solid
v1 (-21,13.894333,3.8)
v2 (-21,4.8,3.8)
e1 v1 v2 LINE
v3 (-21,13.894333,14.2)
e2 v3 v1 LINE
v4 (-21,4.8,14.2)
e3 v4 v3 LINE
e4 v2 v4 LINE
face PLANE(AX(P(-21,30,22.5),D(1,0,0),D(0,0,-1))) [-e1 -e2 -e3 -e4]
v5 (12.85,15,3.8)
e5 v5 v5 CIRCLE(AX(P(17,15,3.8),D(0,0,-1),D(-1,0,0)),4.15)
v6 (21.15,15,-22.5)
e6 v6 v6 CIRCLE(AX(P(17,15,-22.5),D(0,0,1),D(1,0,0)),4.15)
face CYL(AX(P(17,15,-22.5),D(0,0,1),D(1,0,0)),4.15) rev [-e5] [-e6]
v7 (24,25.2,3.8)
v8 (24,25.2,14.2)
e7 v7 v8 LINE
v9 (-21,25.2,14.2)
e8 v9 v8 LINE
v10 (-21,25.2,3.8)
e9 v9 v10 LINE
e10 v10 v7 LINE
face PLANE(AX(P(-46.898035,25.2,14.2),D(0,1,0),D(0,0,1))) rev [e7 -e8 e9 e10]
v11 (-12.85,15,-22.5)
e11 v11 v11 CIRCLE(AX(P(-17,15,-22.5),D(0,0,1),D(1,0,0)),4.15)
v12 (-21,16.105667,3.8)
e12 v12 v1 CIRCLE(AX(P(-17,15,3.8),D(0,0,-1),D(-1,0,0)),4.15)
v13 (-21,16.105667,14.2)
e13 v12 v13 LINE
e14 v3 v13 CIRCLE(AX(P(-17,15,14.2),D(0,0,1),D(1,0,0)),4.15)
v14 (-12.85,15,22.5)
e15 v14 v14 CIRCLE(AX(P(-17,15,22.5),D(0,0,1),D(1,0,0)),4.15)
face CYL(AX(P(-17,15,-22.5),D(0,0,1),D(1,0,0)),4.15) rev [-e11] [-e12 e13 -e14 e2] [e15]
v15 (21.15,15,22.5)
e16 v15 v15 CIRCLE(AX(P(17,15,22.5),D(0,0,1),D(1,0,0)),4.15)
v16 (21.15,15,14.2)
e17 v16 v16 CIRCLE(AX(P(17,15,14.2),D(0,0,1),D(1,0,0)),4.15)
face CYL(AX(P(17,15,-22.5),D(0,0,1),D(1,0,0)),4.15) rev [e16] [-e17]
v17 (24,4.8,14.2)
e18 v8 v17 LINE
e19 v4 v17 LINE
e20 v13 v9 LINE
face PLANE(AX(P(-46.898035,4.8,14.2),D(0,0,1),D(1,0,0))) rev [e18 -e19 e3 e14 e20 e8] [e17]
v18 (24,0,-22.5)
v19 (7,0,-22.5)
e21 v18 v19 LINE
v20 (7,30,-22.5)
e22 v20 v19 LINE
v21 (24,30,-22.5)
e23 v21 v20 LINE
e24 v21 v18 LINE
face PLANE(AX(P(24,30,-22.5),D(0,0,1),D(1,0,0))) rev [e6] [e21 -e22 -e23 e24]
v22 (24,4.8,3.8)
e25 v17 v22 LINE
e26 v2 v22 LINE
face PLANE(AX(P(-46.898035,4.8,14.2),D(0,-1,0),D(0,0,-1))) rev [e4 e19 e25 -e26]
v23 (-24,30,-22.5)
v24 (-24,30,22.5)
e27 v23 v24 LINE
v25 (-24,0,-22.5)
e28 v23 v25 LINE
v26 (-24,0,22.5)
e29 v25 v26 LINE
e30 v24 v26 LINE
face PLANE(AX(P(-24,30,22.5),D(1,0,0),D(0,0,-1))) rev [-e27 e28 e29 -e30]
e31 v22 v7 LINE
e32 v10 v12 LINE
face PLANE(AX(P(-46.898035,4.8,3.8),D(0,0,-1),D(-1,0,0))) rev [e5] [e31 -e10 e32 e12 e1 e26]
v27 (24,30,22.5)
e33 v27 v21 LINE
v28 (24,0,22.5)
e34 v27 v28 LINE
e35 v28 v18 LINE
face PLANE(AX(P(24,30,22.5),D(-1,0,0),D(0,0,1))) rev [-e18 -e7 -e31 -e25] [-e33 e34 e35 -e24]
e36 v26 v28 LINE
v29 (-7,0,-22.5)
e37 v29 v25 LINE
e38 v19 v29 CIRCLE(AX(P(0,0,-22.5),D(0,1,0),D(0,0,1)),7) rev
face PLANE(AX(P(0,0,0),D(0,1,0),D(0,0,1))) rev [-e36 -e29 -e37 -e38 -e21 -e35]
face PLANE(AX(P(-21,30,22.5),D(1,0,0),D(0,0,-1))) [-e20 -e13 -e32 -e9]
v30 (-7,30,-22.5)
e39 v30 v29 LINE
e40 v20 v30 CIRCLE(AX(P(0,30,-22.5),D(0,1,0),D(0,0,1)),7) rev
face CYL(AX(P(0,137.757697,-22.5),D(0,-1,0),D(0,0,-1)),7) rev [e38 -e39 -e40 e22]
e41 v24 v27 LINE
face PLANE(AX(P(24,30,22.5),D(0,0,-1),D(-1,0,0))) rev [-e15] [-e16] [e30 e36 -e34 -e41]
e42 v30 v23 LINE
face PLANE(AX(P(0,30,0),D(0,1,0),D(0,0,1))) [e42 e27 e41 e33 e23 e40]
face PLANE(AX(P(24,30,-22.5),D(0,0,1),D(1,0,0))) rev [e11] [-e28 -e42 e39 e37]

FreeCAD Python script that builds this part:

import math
import FreeCAD as App
import Part
import Sketcher
from FreeCAD import Vector
Q = App.Units.Quantity


def add_polygon(sketch, points):
    """Adds a closed chain of lines whose ends are joined by coincident constraints."""
    first, n = sketch.GeometryCount, len(points)
    for a, b in zip(points, points[1:] + points[:1]):
        sketch.addGeometry(Part.LineSegment(App.Vector(*a, 0), App.Vector(*b, 0)), False)
    for i in range(n):
        sketch.addConstraint(Sketcher.Constraint("Coincident", first + i, 2, first + (i + 1) % n, 1))

doc = App.newDocument("Part")
params = doc.addObject("Spreadsheet::Sheet", "Params")
for row, (alias, value) in enumerate([
    ("sketch1_width", "48 mm"),
    ("sketch1_height", "45 mm"),
    ("pad1_length", "30 mm"),
    ("sketch2_width", "20.4 mm"),
    ("sketch2_height", "10.4 mm"),
    ("pocket1_length", "45 mm"),
    ("sketch3_diameter", "8.3 mm"),
    ("sketch4_radius", "7 mm"),
], start=1):
    params.set(f"A{row}", alias)
    params.set(f"B{row}", "=" + value)
    params.setAlias(f"B{row}", alias)

body = doc.addObject("PartDesign::Body", "Body")

sketch1 = doc.addObject("Sketcher::SketchObject", "Sketch")
body.addObject(sketch1)
sketch1.AttachmentSupport = (doc.XZ_Plane, [""])
sketch1.MapMode = "FlatFace"
add_polygon(sketch1, [(-24, -22), (-24, 22), (24, 22), (24, -22)])
sketch1.addConstraint(Sketcher.Constraint("Vertical", 0))
sketch1.addConstraint(Sketcher.Constraint("Horizontal", 1))
sketch1.addConstraint(Sketcher.Constraint("Vertical", 2))
sketch1.addConstraint(Sketcher.Constraint("Horizontal", 3))
sketch1.addConstraint(Sketcher.Constraint("Symmetric", 0, 2, 2, 2, -1, 1))
sketch1.addConstraint(Sketcher.Constraint("DistanceX", 1, 1, 1, 2, Q("48 mm")))
sketch1.addConstraint(Sketcher.Constraint("DistanceY", 0, 1, 0, 2, Q("45 mm")))
sketch1.setExpression("Constraints[9]", "Params.sketch1_width")
sketch1.setExpression("Constraints[10]", "Params.sketch1_height")
pad1 = doc.addObject("PartDesign::Pad", "Pad")
body.addObject(pad1)
pad1.Profile = sketch1
pad1.setExpression("Length", "Params.pad1_length")
pad1.Reversed = True

sketch2 = doc.addObject("Sketcher::SketchObject", "Sketch001")
body.addObject(sketch2)
sketch2.AttachmentSupport = (doc.YZ_Plane, [""])
sketch2.MapMode = "FlatFace"
sketch2.AttachmentOffset = App.Placement(Vector(0, 0, 24), App.Rotation())
add_polygon(sketch2, [(25, 14), (5, 14), (5, 4), (25, 4)])
sketch2.addConstraint(Sketcher.Constraint("Horizontal", 0))
sketch2.addConstraint(Sketcher.Constraint("Vertical", 1))
sketch2.addConstraint(Sketcher.Constraint("Horizontal", 2))
sketch2.addConstraint(Sketcher.Constraint("Vertical", 3))
sketch2.addConstraint(Sketcher.Constraint("DistanceX", 0, 2, 0, 1, Q("20.4 mm")))
sketch2.addConstraint(Sketcher.Constraint("DistanceY", 1, 2, 1, 1, Q("10.4 mm")))
sketch2.addConstraint(Sketcher.Constraint("DistanceX", -1, 1, 0, 2, Q("4.8 mm")))
sketch2.addConstraint(Sketcher.Constraint("DistanceY", -1, 1, 0, 2, Q("14.2 mm")))
sketch2.setExpression("Constraints[8]", "Params.sketch2_width")
sketch2.setExpression("Constraints[9]", "Params.sketch2_height")
pocket1 = doc.addObject("PartDesign::Pocket", "Pocket")
body.addObject(pocket1)
pocket1.Profile = sketch2
pocket1.setExpression("Length", "Params.pocket1_length")

sketch3 = doc.addObject("Sketcher::SketchObject", "Sketch002")
body.addObject(sketch3)
sketch3.AttachmentSupport = (doc.XY_Plane, [""])
sketch3.MapMode = "FlatFace"
sketch3.AttachmentOffset = App.Placement(Vector(0, 0, 22.5), App.Rotation())
sketch3.addGeometry(Part.Circle(Vector(-17, 15, 0), Vector(0, 0, 1), 4.2), False)
sketch3.addGeometry(Part.Circle(Vector(17, 15, 0), Vector(0, 0, 1), 4.2), False)
sketch3.addConstraint(Sketcher.Constraint("Equal", 0, 1))
sketch3.addConstraint(Sketcher.Constraint("Symmetric", 0, 3, 1, 3, -2))
sketch3.addConstraint(Sketcher.Constraint("Diameter", 0, Q("8.3 mm")))
sketch3.addConstraint(Sketcher.Constraint("DistanceX", 0, 3, -1, 1, Q("17 mm")))
sketch3.addConstraint(Sketcher.Constraint("DistanceY", -1, 1, 0, 3, Q("15 mm")))
sketch3.setExpression("Constraints[2]", "Params.sketch3_diameter")
pocket2 = doc.addObject("PartDesign::Pocket", "Pocket001")
body.addObject(pocket2)
pocket2.Profile = sketch3
pocket2.Type = "ThroughAll"

sketch4 = doc.addObject("Sketcher::SketchObject", "Sketch003")
body.addObject(sketch4)
sketch4.AttachmentSupport = (doc.XZ_Plane, [""])
sketch4.MapMode = "FlatFace"
sketch4.AttachmentOffset = App.Placement(Vector(0, 0, -30), App.Rotation())
sketch4.addGeometry(Part.ArcOfCircle(Part.Circle(Vector(0, -22, 0), Vector(0, 0, 1), 7), math.radians(0), math.radians(180)), False)
sketch4.addGeometry(Part.LineSegment(Vector(7, -22, 0), Vector(7, -380, 0)), False)
sketch4.addGeometry(Part.LineSegment(Vector(7, -380, 0), Vector(-7, -380, 0)), False)
sketch4.addGeometry(Part.LineSegment(Vector(-7, -380, 0), Vector(-7, -22, 0)), False)
sketch4.addConstraint(Sketcher.Constraint("Tangent", 0, 1, 1, 1))
sketch4.addConstraint(Sketcher.Constraint("Coincident", 1, 2, 2, 1))
sketch4.addConstraint(Sketcher.Constraint("Coincident", 2, 2, 3, 1))
sketch4.addConstraint(Sketcher.Constraint("Tangent", 3, 2, 0, 2))
sketch4.addConstraint(Sketcher.Constraint("Vertical", 1))
sketch4.addConstraint(Sketcher.Constraint("Horizontal", 2))
sketch4.addConstraint(Sketcher.Constraint("Vertical", 3))
sketch4.addConstraint(Sketcher.Constraint("PointOnObject", 0, 3, -2))
sketch4.addConstraint(Sketcher.Constraint("Radius", 0, Q("7 mm")))
sketch4.addConstraint(Sketcher.Constraint("DistanceY", 0, 3, -1, 1, Q("22.5 mm")))
sketch4.addConstraint(Sketcher.Constraint("DistanceY", 1, 2, 1, 1, Q("357.865826 mm")))
sketch4.setExpression("Constraints[8]", "Params.sketch4_radius")
pocket3 = doc.addObject("PartDesign::Pocket", "Pocket002")
body.addObject(pocket3)
pocket3.Profile = sketch4
pocket3.Type = "ThroughAll"
pocket3.Midplane = True

doc.recompute()
